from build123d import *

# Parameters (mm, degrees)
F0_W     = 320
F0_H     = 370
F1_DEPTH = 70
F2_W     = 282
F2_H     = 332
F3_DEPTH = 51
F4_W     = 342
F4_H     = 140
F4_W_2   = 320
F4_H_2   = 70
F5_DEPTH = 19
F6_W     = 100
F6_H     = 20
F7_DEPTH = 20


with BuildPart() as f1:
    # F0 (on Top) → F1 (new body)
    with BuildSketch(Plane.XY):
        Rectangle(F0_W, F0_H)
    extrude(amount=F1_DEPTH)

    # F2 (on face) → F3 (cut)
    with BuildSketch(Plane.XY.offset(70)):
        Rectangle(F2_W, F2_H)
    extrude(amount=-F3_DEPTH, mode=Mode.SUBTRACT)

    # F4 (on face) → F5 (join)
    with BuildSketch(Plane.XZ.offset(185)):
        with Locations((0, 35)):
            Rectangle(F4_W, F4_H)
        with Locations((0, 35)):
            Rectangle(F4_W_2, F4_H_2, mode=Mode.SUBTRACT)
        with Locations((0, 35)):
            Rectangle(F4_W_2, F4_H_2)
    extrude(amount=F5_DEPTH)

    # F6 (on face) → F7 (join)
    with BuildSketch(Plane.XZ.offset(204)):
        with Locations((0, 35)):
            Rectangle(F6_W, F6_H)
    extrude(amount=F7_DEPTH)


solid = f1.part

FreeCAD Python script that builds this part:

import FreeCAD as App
import Part
import Sketcher
from FreeCAD import Vector
Q = App.Units.Quantity

doc = App.newDocument("Part")
body = doc.addObject("PartDesign::Body", "Body")

# Sketch on XY plane
sketch1 = body.newObject("Sketcher::SketchObject", "Sketch")
sketch1.AttachmentSupport = (doc.getObject("XY_Plane"), [""])
sketch1.MapMode = "FlatFace"
sketch1.addGeometry(Part.LineSegment(Vector(-160, 185, 0), Vector(-160, -185, 0)), False)
sketch1.addGeometry(Part.LineSegment(Vector(-160, -185, 0), Vector(160, -185, 0)), False)
sketch1.addGeometry(Part.LineSegment(Vector(160, -185, 0), Vector(160, 185, 0)), False)
sketch1.addGeometry(Part.LineSegment(Vector(160, 185, 0), Vector(-160, 185, 0)), False)
sketch1.addConstraint(Sketcher.Constraint("Coincident", 0, 2, 1, 1))
sketch1.addConstraint(Sketcher.Constraint("Coincident", 1, 2, 2, 1))
sketch1.addConstraint(Sketcher.Constraint("Coincident", 2, 2, 3, 1))
sketch1.addConstraint(Sketcher.Constraint("Coincident", 3, 2, 0, 1))
sketch1.addConstraint(Sketcher.Constraint("Vertical", 0))
sketch1.addConstraint(Sketcher.Constraint("Horizontal", 1))
sketch1.addConstraint(Sketcher.Constraint("Vertical", 2))
sketch1.addConstraint(Sketcher.Constraint("Horizontal", 3))
sketch1.addConstraint(Sketcher.Constraint("Symmetric", 0, 2, 2, 2, -1, 1))
sketch1.addConstraint(Sketcher.Constraint("DistanceX", 1, 1, 1, 2, Q("320 mm")))
sketch1.addConstraint(Sketcher.Constraint("DistanceY", 0, 2, 0, 1, Q("370 mm")))
pad1 = body.newObject("PartDesign::Pad", "Pad")
pad1.Profile = sketch1
pad1.Length = 70

# Sketch on XY plane
sketch2 = body.newObject("Sketcher::SketchObject", "Sketch001")
sketch2.AttachmentSupport = (doc.getObject("XY_Plane"), [""])
sketch2.MapMode = "FlatFace"
sketch2.AttachmentOffset = App.Placement(Vector(0, 0, 70), App.Rotation())
sketch2.addGeometry(Part.LineSegment(Vector(-141, 166, 0), Vector(-141, -166, 0)), False)
sketch2.addGeometry(Part.LineSegment(Vector(-141, -166, 0), Vector(141, -166, 0)), False)
sketch2.addGeometry(Part.LineSegment(Vector(141, -166, 0), Vector(141, 166, 0)), False)
sketch2.addGeometry(Part.LineSegment(Vector(141, 166, 0), Vector(-141, 166, 0)), False)
sketch2.addConstraint(Sketcher.Constraint("Coincident", 0, 2, 1, 1))
sketch2.addConstraint(Sketcher.Constraint("Coincident", 1, 2, 2, 1))
sketch2.addConstraint(Sketcher.Constraint("Coincident", 2, 2, 3, 1))
sketch2.addConstraint(Sketcher.Constraint("Coincident", 3, 2, 0, 1))
sketch2.addConstraint(Sketcher.Constraint("Vertical", 0))
sketch2.addConstraint(Sketcher.Constraint("Horizontal", 1))
sketch2.addConstraint(Sketcher.Constraint("Vertical", 2))
sketch2.addConstraint(Sketcher.Constraint("Horizontal", 3))
sketch2.addConstraint(Sketcher.Constraint("Symmetric", 0, 2, 2, 2, -1, 1))
sketch2.addConstraint(Sketcher.Constraint("DistanceX", 1, 1, 1, 2, Q("282 mm")))
sketch2.addConstraint(Sketcher.Constraint("DistanceY", 0, 2, 0, 1, Q("332 mm")))
pocket1 = body.newObject("PartDesign::Pocket", "Pocket")
pocket1.Profile = sketch2
pocket1.Length = 51

# Sketch on XZ plane
sketch3 = body.newObject("Sketcher::SketchObject", "Sketch002")
sketch3.AttachmentSupport = (doc.getObject("XZ_Plane"), [""])
sketch3.MapMode = "FlatFace"
sketch3.AttachmentOffset = App.Placement(Vector(0, 0, 185), App.Rotation())
sketch3.addGeometry(Part.LineSegment(Vector(-171, 105, 0), Vector(-171, -35, 0)), False)
sketch3.addGeometry(Part.LineSegment(Vector(-171, -35, 0), Vector(171, -35, 0)), False)
sketch3.addGeometry(Part.LineSegment(Vector(171, -35, 0), Vector(171, 105, 0)), False)
sketch3.addGeometry(Part.LineSegment(Vector(171, 105, 0), Vector(-171, 105, 0)), False)
sketch3.addConstraint(Sketcher.Constraint("Coincident", 0, 2, 1, 1))
sketch3.addConstraint(Sketcher.Constraint("Coincident", 1, 2, 2, 1))
sketch3.addConstraint(Sketcher.Constraint("Coincident", 2, 2, 3, 1))
sketch3.addConstraint(Sketcher.Constraint("Coincident", 3, 2, 0, 1))
sketch3.addConstraint(Sketcher.Constraint("Vertical", 0))
sketch3.addConstraint(Sketcher.Constraint("Horizontal", 1))
sketch3.addConstraint(Sketcher.Constraint("Vertical", 2))
sketch3.addConstraint(Sketcher.Constraint("Horizontal", 3))
sketch3.addConstraint(Sketcher.Constraint("DistanceX", 1, 1, 1, 2, Q("342 mm")))
sketch3.addConstraint(Sketcher.Constraint("DistanceY", 0, 2, 0, 1, Q("140 mm")))
sketch3.addConstraint(Sketcher.Constraint("DistanceX", 0, 2, -1, 1, Q("171 mm")))
sketch3.addConstraint(Sketcher.Constraint("DistanceY", 0, 2, -1, 1, Q("35 mm")))
pad2 = body.newObject("PartDesign::Pad", "Pad001")
pad2.Profile = sketch3
pad2.Length = 19

# Sketch on XZ plane
sketch4 = body.newObject("Sketcher::SketchObject", "Sketch003")
sketch4.AttachmentSupport = (doc.getObject("XZ_Plane"), [""])
sketch4.MapMode = "FlatFace"
sketch4.AttachmentOffset = App.Placement(Vector(0, 0, 204), App.Rotation())
sketch4.addGeometry(Part.LineSegment(Vector(-50, 45, 0), Vector(-50, 25, 0)), False)
sketch4.addGeometry(Part.LineSegment(Vector(-50, 25, 0), Vector(50, 25, 0)), False)
sketch4.addGeometry(Part.LineSegment(Vector(50, 25, 0), Vector(50, 45, 0)), False)
sketch4.addGeometry(Part.LineSegment(Vector(50, 45, 0), Vector(-50, 45, 0)), False)
sketch4.addConstraint(Sketcher.Constraint("Coincident", 0, 2, 1, 1))
sketch4.addConstraint(Sketcher.Constraint("Coincident", 1, 2, 2, 1))
sketch4.addConstraint(Sketcher.Constraint("Coincident", 2, 2, 3, 1))
sketch4.addConstraint(Sketcher.Constraint("Coincident", 3, 2, 0, 1))
sketch4.addConstraint(Sketcher.Constraint("Vertical", 0))
sketch4.addConstraint(Sketcher.Constraint("Horizontal", 1))
sketch4.addConstraint(Sketcher.Constraint("Vertical", 2))
sketch4.addConstraint(Sketcher.Constraint("Horizontal", 3))
sketch4.addConstraint(Sketcher.Constraint("DistanceX", 1, 1, 1, 2, Q("100 mm")))
sketch4.addConstraint(Sketcher.Constraint("DistanceY", 0, 2, 0, 1, Q("20 mm")))
sketch4.addConstraint(Sketcher.Constraint("DistanceX", 0, 2, -1, 1, Q("50 mm")))
sketch4.addConstraint(Sketcher.Constraint("DistanceY", -1, 1, 0, 2, Q("25 mm")))
pad3 = body.newObject("PartDesign::Pad", "Pad002")
pad3.Profile = sketch4
pad3.Length = 20

doc.recompute()
